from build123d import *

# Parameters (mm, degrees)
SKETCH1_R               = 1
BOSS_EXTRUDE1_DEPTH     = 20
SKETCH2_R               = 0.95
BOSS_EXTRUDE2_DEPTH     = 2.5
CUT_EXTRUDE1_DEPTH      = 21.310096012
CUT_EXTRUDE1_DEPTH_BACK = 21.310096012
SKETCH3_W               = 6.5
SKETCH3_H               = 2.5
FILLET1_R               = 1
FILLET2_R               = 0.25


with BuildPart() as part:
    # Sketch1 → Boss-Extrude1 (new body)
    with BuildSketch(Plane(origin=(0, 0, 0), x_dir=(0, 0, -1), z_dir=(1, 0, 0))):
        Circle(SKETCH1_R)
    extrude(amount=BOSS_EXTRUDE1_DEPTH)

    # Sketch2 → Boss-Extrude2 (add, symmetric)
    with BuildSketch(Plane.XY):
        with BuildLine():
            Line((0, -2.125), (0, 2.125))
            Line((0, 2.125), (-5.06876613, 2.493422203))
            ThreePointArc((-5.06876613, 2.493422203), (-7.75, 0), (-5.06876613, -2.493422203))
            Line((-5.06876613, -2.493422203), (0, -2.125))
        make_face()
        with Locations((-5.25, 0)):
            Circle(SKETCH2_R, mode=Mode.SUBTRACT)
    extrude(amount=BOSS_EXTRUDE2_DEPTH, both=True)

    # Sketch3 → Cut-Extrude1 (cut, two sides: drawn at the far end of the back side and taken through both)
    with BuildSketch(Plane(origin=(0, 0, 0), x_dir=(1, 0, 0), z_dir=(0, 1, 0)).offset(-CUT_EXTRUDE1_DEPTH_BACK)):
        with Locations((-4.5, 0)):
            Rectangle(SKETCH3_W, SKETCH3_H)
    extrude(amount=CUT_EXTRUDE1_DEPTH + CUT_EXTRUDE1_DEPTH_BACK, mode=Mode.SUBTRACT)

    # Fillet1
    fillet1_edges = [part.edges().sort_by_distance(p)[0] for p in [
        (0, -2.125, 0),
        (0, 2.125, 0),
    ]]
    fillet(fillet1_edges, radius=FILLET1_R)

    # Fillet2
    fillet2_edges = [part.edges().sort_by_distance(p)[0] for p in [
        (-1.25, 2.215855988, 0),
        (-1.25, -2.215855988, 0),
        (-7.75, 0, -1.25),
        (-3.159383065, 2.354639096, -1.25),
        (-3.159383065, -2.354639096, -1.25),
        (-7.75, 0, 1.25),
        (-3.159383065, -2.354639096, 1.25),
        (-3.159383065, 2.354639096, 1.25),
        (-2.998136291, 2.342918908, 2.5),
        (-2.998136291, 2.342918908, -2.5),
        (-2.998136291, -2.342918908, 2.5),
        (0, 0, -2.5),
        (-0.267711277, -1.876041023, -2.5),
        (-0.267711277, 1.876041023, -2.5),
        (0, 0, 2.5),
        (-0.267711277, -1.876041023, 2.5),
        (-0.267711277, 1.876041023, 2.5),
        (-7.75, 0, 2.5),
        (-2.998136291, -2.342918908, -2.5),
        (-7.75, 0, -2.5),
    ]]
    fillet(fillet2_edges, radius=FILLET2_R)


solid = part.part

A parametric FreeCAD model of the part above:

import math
import FreeCAD as App
import Part
import Sketcher

V = App.Vector


def edges_at(feature, points):
    """Names of the edges that pass closest to the given points."""
    edges = feature.Shape.Edges
    near = lambda p: min(range(len(edges)), key=lambda i: edges[i].distToShape(Part.Vertex(*p))[0])
    return sorted({f"Edge{near(p) + 1}" for p in points})

doc = App.newDocument("Part")
body = doc.addObject("PartDesign::Body", "Body")

# Sketch on YZ plane
sketch1 = body.newObject("Sketcher::SketchObject", "Sketch")
sketch1.AttachmentSupport = (doc.getObject("YZ_Plane"), [""])
sketch1.MapMode = "FlatFace"
sketch1.addGeometry(Part.Circle(V(0, 0, 0), V(0, 0, 1), 1), False)
sketch1.addConstraint([
    Sketcher.Constraint("Coincident", 0, 3, -1, 1),
    Sketcher.Constraint("Diameter", 0, 2.0),
])
pad1 = body.newObject("PartDesign::Pad", "Pad")
pad1.Profile = sketch1
pad1.Length = 20

# Sketch on XY plane
sketch2 = body.newObject("Sketcher::SketchObject", "Sketch001")
sketch2.AttachmentSupport = (doc.getObject("XY_Plane"), [""])
sketch2.MapMode = "FlatFace"
sketch2.addGeometry([
    Part.LineSegment(V(0, -2.1, 0), V(0, 2.1, 0)),  # 0
    Part.LineSegment(V(0, 2.1, 0), V(-5.1, 2.5, 0)),  # 1
    Part.ArcOfCircle(Part.Circle(V(-5.2, 0, 0), V(0, 0, 1), 2.5), math.radians(86), math.radians(274)),  # 2
    Part.LineSegment(V(-5.1, -2.5, 0), V(0, -2.1, 0)),  # 3
    Part.Circle(V(-5.2, 0, 0), V(0, 0, 1), 0.9),  # 4
], False)
sketch2.addConstraint([
    Sketcher.Constraint("Coincident", 0, 2, 1, 1),
    Sketcher.Constraint("Tangent", 1, 2, 2, 1),
    Sketcher.Constraint("Tangent", 2, 2, 3, 1),
    Sketcher.Constraint("Coincident", 3, 2, 0, 1),
    Sketcher.Constraint("Vertical", 0),
    Sketcher.Constraint("Coincident", 4, 3, 2, 3),
    Sketcher.Constraint("Symmetric", 0, 2, 3, 2, -1, 1),
    Sketcher.Constraint("PointOnObject", 2, 3, -1),
    Sketcher.Constraint("Diameter", 4, 1.9),
    Sketcher.Constraint("Radius", 2, 2.5),
    Sketcher.Constraint("DistanceY", 0, 1, 0, 2, 4.25),
    Sketcher.Constraint("DistanceX", 2, 3, -1, 1, 5.25),
])
pad2 = body.newObject("PartDesign::Pad", "Pad001")
pad2.Profile = sketch2
pad2.Length = 5
pad2.Midplane = True

# Sketch on XZ plane
sketch3 = body.newObject("Sketcher::SketchObject", "Sketch002")
sketch3.AttachmentSupport = (doc.getObject("XZ_Plane"), [""])
sketch3.MapMode = "FlatFace"
sketch3.addGeometry([
    Part.LineSegment(V(-7.8, -1.2, 0), V(-7.8, 1.2, 0)),
    Part.LineSegment(V(-7.8, 1.2, 0), V(-1.2, 1.2, 0)),
    Part.LineSegment(V(-1.2, 1.2, 0), V(-1.2, -1.2, 0)),
    Part.LineSegment(V(-1.2, -1.2, 0), V(-7.8, -1.2, 0)),
], False)
sketch3.addConstraint([
    Sketcher.Constraint("Coincident", 0, 2, 1, 1),
    Sketcher.Constraint("Coincident", 1, 2, 2, 1),
    Sketcher.Constraint("Coincident", 2, 2, 3, 1),
    Sketcher.Constraint("Coincident", 3, 2, 0, 1),
    Sketcher.Constraint("Vertical", 0),
    Sketcher.Constraint("Horizontal", 1),
    Sketcher.Constraint("Vertical", 2),
    Sketcher.Constraint("Horizontal", 3),
    Sketcher.Constraint("DistanceX", 1, 1, 1, 2, 6.5),
    Sketcher.Constraint("DistanceY", 0, 1, 0, 2, 2.5),
    Sketcher.Constraint("DistanceX", 0, 2, -1, 1, 7.75),
    Sketcher.Constraint("DistanceY", -1, 1, 0, 2, 1.25),
])
pocket1 = body.newObject("PartDesign::Pocket", "Pocket")
pocket1.Profile = sketch3
pocket1.Type = "ThroughAll"
pocket1.Midplane = True
doc.recompute()

fillet = body.newObject("PartDesign::Fillet", "Fillet")
fillet.Base = (pocket1, edges_at(pocket1, [(0, -2.125, 0), (0, 2.125, 0)]))
fillet.Radius = 1
doc.recompute()

fillet2 = body.newObject("PartDesign::Fillet", "Fillet001")
fillet2.Base = (fillet, edges_at(fillet, [
    (-1.25, 2.216, 0),
    (-1.25, -2.216, 0),
    (-7.75, 0, -1.25),
    (-3.159, 2.355, -1.25),
    (-3.159, -2.355, -1.25),
    (-7.75, 0, 1.25),
    (-3.159, -2.355, 1.25),
    (-3.159, 2.355, 1.25),
    (-2.998, 2.343, 2.5),
    (-2.998, 2.343, -2.5),
    (-2.998, -2.343, 2.5),
    (0, 0, -2.5),
    (-0.268, -1.876, -2.5),
    (-0.268, 1.876, -2.5),
    (0, 0, 2.5),
    (-0.268, -1.876, 2.5),
    (-0.268, 1.876, 2.5),
    (-7.75, 0, 2.5),
    (-2.998, -2.343, -2.5),
    (-7.75, 0, -2.5),
]))
fillet2.Radius = 0.25

doc.recompute()
